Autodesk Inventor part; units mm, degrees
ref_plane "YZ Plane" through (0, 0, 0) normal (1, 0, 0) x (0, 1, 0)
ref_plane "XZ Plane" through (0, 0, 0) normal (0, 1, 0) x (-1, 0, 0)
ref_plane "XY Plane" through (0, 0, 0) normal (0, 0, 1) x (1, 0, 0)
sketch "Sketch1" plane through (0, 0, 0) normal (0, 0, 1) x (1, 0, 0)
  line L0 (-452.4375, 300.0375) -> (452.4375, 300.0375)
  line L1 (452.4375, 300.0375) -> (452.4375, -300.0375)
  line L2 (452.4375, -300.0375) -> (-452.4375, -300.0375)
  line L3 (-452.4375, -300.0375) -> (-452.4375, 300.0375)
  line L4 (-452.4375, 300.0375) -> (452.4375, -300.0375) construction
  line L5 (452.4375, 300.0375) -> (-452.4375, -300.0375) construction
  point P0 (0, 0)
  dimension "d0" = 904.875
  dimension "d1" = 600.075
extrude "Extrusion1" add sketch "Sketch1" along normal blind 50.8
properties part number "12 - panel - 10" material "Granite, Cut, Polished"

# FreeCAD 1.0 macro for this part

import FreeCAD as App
import Part
import Sketcher

V = App.Vector
Q = App.Units.Quantity


def add_polygon(sketch, points):
    """Adds a closed chain of lines whose ends are joined by coincident constraints."""
    first, n = sketch.GeometryCount, len(points)
    for a, b in zip(points, points[1:] + points[:1]):
        sketch.addGeometry(Part.LineSegment(App.Vector(*a, 0), App.Vector(*b, 0)), False)
    for i in range(n):
        sketch.addConstraint(Sketcher.Constraint("Coincident", first + i, 2, first + (i + 1) % n, 1))

doc = App.newDocument("Part")
body = doc.addObject("PartDesign::Body", "Body")

sketch1 = body.newObject("Sketcher::SketchObject", "Sketch")
sketch1.AttachmentSupport = (doc.getObject("XY_Plane"), [""])
sketch1.MapMode = "FlatFace"
add_polygon(sketch1, [(452, 300), (-452, 300), (-452, -300), (452, -300)])
sketch1.addConstraint([
    Sketcher.Constraint("Horizontal", 0),
    Sketcher.Constraint("Vertical", 1),
    Sketcher.Constraint("Horizontal", 2),
    Sketcher.Constraint("Vertical", 3),
    Sketcher.Constraint("Symmetric", 0, 2, 2, 2, -1, 1),
    Sketcher.Constraint("DistanceX", 0, 2, 0, 1, Q("35.625 in")),
    Sketcher.Constraint("DistanceY", 1, 2, 1, 1, Q("23.625 in")),
])
pad1 = body.newObject("PartDesign::Pad", "Pad")
pad1.Profile = sketch1
pad1.Length = Q("2 in")

doc.recompute()
